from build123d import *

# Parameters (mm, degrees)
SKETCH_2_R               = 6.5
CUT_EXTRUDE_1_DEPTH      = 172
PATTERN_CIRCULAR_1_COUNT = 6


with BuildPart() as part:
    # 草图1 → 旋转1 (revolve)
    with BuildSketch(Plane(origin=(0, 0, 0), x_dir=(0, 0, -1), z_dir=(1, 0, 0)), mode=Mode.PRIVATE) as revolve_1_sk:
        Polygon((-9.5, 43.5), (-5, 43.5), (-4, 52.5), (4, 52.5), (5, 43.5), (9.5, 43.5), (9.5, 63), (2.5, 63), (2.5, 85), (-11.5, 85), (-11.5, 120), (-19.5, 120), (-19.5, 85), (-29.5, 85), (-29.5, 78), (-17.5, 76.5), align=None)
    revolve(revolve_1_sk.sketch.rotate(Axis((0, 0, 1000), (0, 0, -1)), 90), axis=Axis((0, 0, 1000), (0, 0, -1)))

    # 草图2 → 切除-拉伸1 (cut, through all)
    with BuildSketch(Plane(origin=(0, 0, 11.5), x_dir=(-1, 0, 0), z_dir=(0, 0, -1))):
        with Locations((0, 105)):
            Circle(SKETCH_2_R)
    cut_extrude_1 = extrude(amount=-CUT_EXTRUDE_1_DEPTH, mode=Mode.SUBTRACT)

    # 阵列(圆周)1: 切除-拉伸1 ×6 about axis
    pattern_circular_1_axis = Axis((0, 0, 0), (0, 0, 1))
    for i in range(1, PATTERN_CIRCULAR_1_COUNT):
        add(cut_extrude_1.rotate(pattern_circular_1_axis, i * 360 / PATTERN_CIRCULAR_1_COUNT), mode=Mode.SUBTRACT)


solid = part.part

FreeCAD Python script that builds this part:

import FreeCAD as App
import Part
import Sketcher

V = App.Vector
Q = App.Units.Quantity


def add_polygon(sketch, points):
    """Adds a closed chain of lines whose ends are joined by coincident constraints."""
    first, n = sketch.GeometryCount, len(points)
    for a, b in zip(points, points[1:] + points[:1]):
        sketch.addGeometry(Part.LineSegment(App.Vector(*a, 0), App.Vector(*b, 0)), False)
    for i in range(n):
        sketch.addConstraint(Sketcher.Constraint("Coincident", first + i, 2, first + (i + 1) % n, 1))

doc = App.newDocument("Part")
body = doc.addObject("PartDesign::Body", "Body")

# Sketch on YZ plane
sketch1 = body.newObject("Sketcher::SketchObject", "Sketch")
sketch1.AttachmentSupport = (doc.getObject("YZ_Plane"), [""])
sketch1.MapMode = "FlatFace"
add_polygon(sketch1, [(43.5, 9.5), (43.5, 5), (52.5, 4), (52.5, -4), (43.5, -5), (43.5, -9.5), (63, -9.5), (63, -2.5), (85, -2.5), (85, 11.5), (120, 11.5), (120, 19.5), (85, 19.5), (85, 29.5), (78, 29.5), (76.5, 17.5)])  # lines 0-15
sketch1.addConstraint([
    Sketcher.Constraint("Vertical", 0),
    Sketcher.Constraint("Vertical", 2),
    Sketcher.Constraint("Vertical", 4),
    Sketcher.Constraint("Horizontal", 5),
    Sketcher.Constraint("Vertical", 6),
    Sketcher.Constraint("Horizontal", 7),
    Sketcher.Constraint("Vertical", 8),
    Sketcher.Constraint("Horizontal", 9),
    Sketcher.Constraint("Vertical", 10),
    Sketcher.Constraint("Horizontal", 11),
    Sketcher.Constraint("Vertical", 12),
    Sketcher.Constraint("Horizontal", 13),
    Sketcher.Constraint("Symmetric", 0, 2, 3, 2, -1),
    Sketcher.Constraint("Vertical", 8, 2, 11, 2),
    Sketcher.Constraint("Equal", 0, 4),
    Sketcher.Constraint("Equal", 13, 6),
    Sketcher.Constraint("Equal", 2, 10),
    Sketcher.Constraint("Equal", 1, 3),
    Sketcher.Constraint("DistanceX", 7, 1, 7, 2, Q("22 mm")),
    Sketcher.Constraint("DistanceX", 9, 1, 9, 2, Q("35 mm")),
    Sketcher.Constraint("DistanceX", 13, 2, 13, 1, Q("7 mm")),
    Sketcher.Constraint("DistanceY", 2, 2, 2, 1, Q("8 mm")),
    Sketcher.Constraint("DistanceY", 8, 1, 8, 2, Q("14 mm")),
    Sketcher.Constraint("DistanceY", 12, 1, 12, 2, Q("10 mm")),
    Sketcher.Constraint("DistanceX", 5, 1, 5, 2, Q("19.5 mm")),
    Sketcher.Constraint("DistanceY", 0, 2, 0, 1, Q("4.5 mm")),
    Sketcher.Constraint("DistanceY", -1, 1, 0, 2, Q("5 mm")),
    Sketcher.Constraint("DistanceX", -1, 1, 5, 2, Q("63 mm")),
    Sketcher.Constraint("DistanceX", 0, 2, 1, 2, Q("9 mm")),
    Sketcher.Constraint("DistanceY", 14, 2, 11, 2, Q("2 mm")),
    Sketcher.Constraint("DistanceX", -1, 1, 14, 2, Q("76.5 mm")),
])
revolution = body.newObject("PartDesign::Revolution", "Revolution")
revolution.Profile = sketch1
revolution.ReferenceAxis = (sketch1, ["V_Axis"])
revolution.Angle = 360

# Sketch on XY plane
sketch2 = body.newObject("Sketcher::SketchObject", "Sketch001")
sketch2.AttachmentSupport = (doc.getObject("XY_Plane"), [""])
sketch2.MapMode = "FlatFace"
sketch2.AttachmentOffset = App.Placement(V(0, 0, 11.5), App.Rotation())
sketch2.addGeometry(Part.Circle(V(0, 105, 0), V(0, 0, 1), 6), False)
sketch2.addConstraint([
    Sketcher.Constraint("PointOnObject", 0, 3, -2),
    Sketcher.Constraint("Diameter", 0, Q("13 mm")),
    Sketcher.Constraint("DistanceY", -1, 1, 0, 3, Q("105 mm")),
])
pocket1 = body.newObject("PartDesign::Pocket", "Pocket")
pocket1.Profile = sketch2
pocket1.Type = "ThroughAll"
pocket1.Reversed = True
doc.recompute()

polarpattern = body.newObject("PartDesign::PolarPattern", "PolarPattern")
polarpattern.Originals = [pocket1]
polarpattern.Axis = (doc.getObject("Z_Axis"), [""])
polarpattern.Angle = 360
polarpattern.Occurrences = 6
body.Tip = polarpattern

doc.recompute()
